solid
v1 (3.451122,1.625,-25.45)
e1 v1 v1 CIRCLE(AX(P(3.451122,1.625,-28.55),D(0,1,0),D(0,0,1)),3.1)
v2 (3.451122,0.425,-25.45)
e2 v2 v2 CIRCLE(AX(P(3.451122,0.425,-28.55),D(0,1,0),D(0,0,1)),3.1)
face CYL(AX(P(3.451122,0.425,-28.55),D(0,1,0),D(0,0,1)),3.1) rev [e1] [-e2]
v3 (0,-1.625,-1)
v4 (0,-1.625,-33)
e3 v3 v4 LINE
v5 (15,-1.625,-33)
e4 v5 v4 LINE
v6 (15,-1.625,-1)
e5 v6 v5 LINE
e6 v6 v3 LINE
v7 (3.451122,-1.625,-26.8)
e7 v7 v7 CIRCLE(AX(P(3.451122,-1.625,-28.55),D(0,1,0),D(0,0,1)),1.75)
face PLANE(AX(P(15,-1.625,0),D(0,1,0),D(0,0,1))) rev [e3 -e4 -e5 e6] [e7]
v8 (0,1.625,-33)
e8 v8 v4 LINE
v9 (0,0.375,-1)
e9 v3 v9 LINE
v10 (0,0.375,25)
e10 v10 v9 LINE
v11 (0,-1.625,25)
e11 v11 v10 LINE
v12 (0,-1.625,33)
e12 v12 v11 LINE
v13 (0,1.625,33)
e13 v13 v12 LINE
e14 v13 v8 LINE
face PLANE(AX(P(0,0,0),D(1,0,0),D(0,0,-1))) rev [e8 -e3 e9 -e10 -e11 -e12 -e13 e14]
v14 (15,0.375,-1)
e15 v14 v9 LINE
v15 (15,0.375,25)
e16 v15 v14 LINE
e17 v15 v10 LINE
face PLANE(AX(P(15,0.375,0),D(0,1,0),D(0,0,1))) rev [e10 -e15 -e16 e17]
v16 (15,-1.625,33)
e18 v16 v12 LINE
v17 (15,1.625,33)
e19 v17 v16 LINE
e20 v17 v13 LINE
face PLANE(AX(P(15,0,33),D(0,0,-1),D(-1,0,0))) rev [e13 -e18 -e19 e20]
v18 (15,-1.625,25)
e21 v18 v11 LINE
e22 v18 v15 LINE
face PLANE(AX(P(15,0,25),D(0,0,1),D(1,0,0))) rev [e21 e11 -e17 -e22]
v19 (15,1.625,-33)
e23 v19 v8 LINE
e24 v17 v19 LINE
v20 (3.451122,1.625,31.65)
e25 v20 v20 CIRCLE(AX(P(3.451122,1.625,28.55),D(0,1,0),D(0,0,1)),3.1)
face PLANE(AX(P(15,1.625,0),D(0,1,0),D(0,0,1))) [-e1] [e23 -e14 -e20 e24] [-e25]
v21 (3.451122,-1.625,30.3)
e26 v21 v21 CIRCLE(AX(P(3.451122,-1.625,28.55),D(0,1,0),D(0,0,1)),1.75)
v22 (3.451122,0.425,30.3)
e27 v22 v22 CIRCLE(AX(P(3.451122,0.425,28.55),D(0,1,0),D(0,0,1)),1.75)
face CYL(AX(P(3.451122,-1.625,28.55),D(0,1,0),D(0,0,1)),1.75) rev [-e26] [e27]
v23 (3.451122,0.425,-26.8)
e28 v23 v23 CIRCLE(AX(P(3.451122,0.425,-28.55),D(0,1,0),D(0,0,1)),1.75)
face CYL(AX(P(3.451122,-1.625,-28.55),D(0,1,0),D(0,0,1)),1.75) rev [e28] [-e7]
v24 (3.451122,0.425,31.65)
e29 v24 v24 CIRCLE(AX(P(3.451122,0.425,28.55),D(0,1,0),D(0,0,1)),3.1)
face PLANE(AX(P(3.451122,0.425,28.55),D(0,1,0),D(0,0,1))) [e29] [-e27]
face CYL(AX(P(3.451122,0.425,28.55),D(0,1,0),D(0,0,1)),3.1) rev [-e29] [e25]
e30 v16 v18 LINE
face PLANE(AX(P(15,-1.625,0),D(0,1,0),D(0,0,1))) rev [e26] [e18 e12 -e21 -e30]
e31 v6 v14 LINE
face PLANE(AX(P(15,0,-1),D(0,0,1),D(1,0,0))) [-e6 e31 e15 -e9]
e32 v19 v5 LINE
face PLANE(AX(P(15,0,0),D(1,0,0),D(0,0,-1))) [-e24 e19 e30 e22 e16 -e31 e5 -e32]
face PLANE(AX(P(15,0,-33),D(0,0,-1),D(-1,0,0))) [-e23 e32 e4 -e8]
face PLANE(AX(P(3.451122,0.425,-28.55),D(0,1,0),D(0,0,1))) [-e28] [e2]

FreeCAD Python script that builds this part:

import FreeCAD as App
import Part
import Sketcher
from FreeCAD import Vector
Q = App.Units.Quantity


def add_polygon(sketch, points):
    """Adds a closed chain of lines whose ends are joined by coincident constraints."""
    first, n = sketch.GeometryCount, len(points)
    for a, b in zip(points, points[1:] + points[:1]):
        sketch.addGeometry(Part.LineSegment(App.Vector(*a, 0), App.Vector(*b, 0)), False)
    for i in range(n):
        sketch.addConstraint(Sketcher.Constraint("Coincident", first + i, 2, first + (i + 1) % n, 1))

doc = App.newDocument("Part")
body = doc.addObject("PartDesign::Body", "Body")

sketch1 = body.newObject("Sketcher::SketchObject", "Sketch")
sketch1.AttachmentSupport = (doc.getObject("YZ_Plane"), [""])
sketch1.MapMode = "FlatFace"
add_polygon(sketch1, [(1.6, -33), (1.6, 33), (-1.6, 33), (-1.6, 25), (0.4, 25), (0.4, -1), (-1.6, -1), (-1.6, -33)])
sketch1.addConstraint([
    Sketcher.Constraint("Vertical", 0),
    Sketcher.Constraint("Horizontal", 1),
    Sketcher.Constraint("Vertical", 2),
    Sketcher.Constraint("Horizontal", 3),
    Sketcher.Constraint("Vertical", 4),
    Sketcher.Constraint("Horizontal", 5),
    Sketcher.Constraint("Vertical", 6),
    Sketcher.Constraint("Horizontal", 7),
    Sketcher.Constraint("Symmetric", 0, 2, 6, 2, -1, 1),
    Sketcher.Constraint("Vertical", 2, 2, 5, 2),
    Sketcher.Constraint("DistanceX", 3, 1, 3, 2, Q("2 mm")),
    Sketcher.Constraint("DistanceY", 0, 1, 0, 2, Q("66 mm")),
    Sketcher.Constraint("DistanceY", 2, 2, 2, 1, Q("8 mm")),
    Sketcher.Constraint("DistanceY", 4, 2, 4, 1, Q("26 mm")),
    Sketcher.Constraint("DistanceX", 1, 2, 1, 1, Q("3.25 mm")),
])
pad1 = body.newObject("PartDesign::Pad", "Pad")
pad1.Profile = sketch1
pad1.Length = 15

sketch2 = body.newObject("Sketcher::SketchObject", "Sketch001")
sketch2.AttachmentSupport = (doc.getObject("XZ_Plane"), [""])
sketch2.MapMode = "FlatFace"
sketch2.AttachmentOffset = App.Placement(Vector(0, 0, -1.625), App.Rotation())
sketch2.addGeometry([
    Part.Circle(Vector(3.5, 28.6, 0), Vector(0, 0, 1), 1.8),
    Part.Circle(Vector(3.5, -28.6, 0), Vector(0, 0, 1), 1.8),
], False)
sketch2.addConstraint([
    Sketcher.Constraint("Equal", 0, 1),
    Sketcher.Constraint("Symmetric", 0, 3, 1, 3, -1),
    Sketcher.Constraint("Diameter", 0, Q("3.5 mm")),
    Sketcher.Constraint("DistanceY", 1, 3, 0, 3, Q("57.1 mm")),
    Sketcher.Constraint("DistanceX", -1, 1, 0, 3, Q("3.451122 mm")),
])
pocket1 = body.newObject("PartDesign::Pocket", "Pocket")
pocket1.Profile = sketch2
pocket1.Type = "ThroughAll"
pocket1.Reversed = True

sketch3 = body.newObject("Sketcher::SketchObject", "Sketch002")
sketch3.AttachmentSupport = (doc.getObject("XZ_Plane"), [""])
sketch3.MapMode = "FlatFace"
sketch3.AttachmentOffset = App.Placement(Vector(0, 0, -1.625), App.Rotation())
sketch3.addGeometry([
    Part.Circle(Vector(3.5, -28.6, 0), Vector(0, 0, 1), 3.1),
    Part.Circle(Vector(3.5, -28.6, 0), Vector(0, 0, 1), 1.8),
    Part.Circle(Vector(3.5, 28.6, 0), Vector(0, 0, 1), 3.1),
    Part.Circle(Vector(3.5, 28.6, 0), Vector(0, 0, 1), 1.8),
], False)
sketch3.addConstraint([
    Sketcher.Constraint("Coincident", 1, 3, 0, 3),
    Sketcher.Constraint("Coincident", 3, 3, 2, 3),
    Sketcher.Constraint("Equal", 0, 2),
    Sketcher.Constraint("Equal", 1, 3),
    Sketcher.Constraint("Symmetric", 0, 3, 2, 3, -1),
    Sketcher.Constraint("Diameter", 0, Q("6.2 mm")),
    Sketcher.Constraint("Diameter", 1, Q("3.5 mm")),
    Sketcher.Constraint("DistanceY", 0, 3, 2, 3, Q("57.1 mm")),
    Sketcher.Constraint("DistanceX", -1, 1, 0, 3, Q("3.451122 mm")),
])
pocket2 = body.newObject("PartDesign::Pocket", "Pocket001")
pocket2.Profile = sketch3
pocket2.Length = 1.2
pocket2.Reversed = True

doc.recompute()
